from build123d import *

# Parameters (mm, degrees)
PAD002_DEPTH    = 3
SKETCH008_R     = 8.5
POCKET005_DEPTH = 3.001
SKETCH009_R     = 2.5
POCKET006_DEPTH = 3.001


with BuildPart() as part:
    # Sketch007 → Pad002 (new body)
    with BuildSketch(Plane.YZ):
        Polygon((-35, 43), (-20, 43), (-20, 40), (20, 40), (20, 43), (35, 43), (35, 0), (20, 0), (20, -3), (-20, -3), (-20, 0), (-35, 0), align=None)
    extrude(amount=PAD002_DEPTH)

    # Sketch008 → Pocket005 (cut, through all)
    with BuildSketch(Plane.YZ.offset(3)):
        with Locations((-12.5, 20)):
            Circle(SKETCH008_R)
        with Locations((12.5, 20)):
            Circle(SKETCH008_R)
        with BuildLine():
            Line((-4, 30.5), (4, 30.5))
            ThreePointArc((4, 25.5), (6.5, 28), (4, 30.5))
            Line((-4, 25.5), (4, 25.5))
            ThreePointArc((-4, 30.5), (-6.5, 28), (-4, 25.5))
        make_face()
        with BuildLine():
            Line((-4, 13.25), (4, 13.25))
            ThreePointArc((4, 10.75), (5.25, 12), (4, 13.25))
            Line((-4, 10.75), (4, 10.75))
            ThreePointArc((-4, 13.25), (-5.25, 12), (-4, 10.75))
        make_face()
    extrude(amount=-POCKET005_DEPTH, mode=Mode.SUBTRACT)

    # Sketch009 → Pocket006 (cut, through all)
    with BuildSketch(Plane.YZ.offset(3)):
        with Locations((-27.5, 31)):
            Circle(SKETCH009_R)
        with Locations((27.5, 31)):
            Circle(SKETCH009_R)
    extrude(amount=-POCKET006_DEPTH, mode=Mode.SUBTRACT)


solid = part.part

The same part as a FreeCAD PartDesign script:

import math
import FreeCAD as App
import Part
import Sketcher

V = App.Vector
Q = App.Units.Quantity


def add_polygon(sketch, points):
    """Adds a closed chain of lines whose ends are joined by coincident constraints."""
    first, n = sketch.GeometryCount, len(points)
    for a, b in zip(points, points[1:] + points[:1]):
        sketch.addGeometry(Part.LineSegment(App.Vector(*a, 0), App.Vector(*b, 0)), False)
    for i in range(n):
        sketch.addConstraint(Sketcher.Constraint("Coincident", first + i, 2, first + (i + 1) % n, 1))

doc = App.newDocument("Part")
body = doc.addObject("PartDesign::Body", "Body")

# Sketch on YZ plane
sketch1 = body.newObject("Sketcher::SketchObject", "Sketch")
sketch1.AttachmentSupport = (doc.getObject("YZ_Plane"), [""])
sketch1.MapMode = "FlatFace"
add_polygon(sketch1, [(-20, 43), (-35, 43), (-35, 0), (-20, 0), (-20, -3), (20, -3), (20, 0), (35, 0), (35, 43), (20, 43), (20, 40), (-20, 40)])  # lines 0-11
sketch1.addConstraint([
    Sketcher.Constraint("Horizontal", 0),
    Sketcher.Constraint("Vertical", 1),
    Sketcher.Constraint("Horizontal", 2),
    Sketcher.Constraint("Vertical", 3),
    Sketcher.Constraint("Horizontal", 4),
    Sketcher.Constraint("Vertical", 5),
    Sketcher.Constraint("Horizontal", 6),
    Sketcher.Constraint("Vertical", 7),
    Sketcher.Constraint("Horizontal", 8),
    Sketcher.Constraint("Vertical", 9),
    Sketcher.Constraint("Horizontal", 10),
    Sketcher.Constraint("Vertical", 11),
    Sketcher.Constraint("Symmetric", 2, 2, 5, 2, -1, 1),
    Sketcher.Constraint("Symmetric", 1, 2, 6, 2, -2),
    Sketcher.Constraint("Symmetric", 8, 2, 11, 2, -2),
    Sketcher.Constraint("Vertical", 5, 2, 8, 2),
    Sketcher.Constraint("Equal", 5, 9),
    Sketcher.Constraint("DistanceX", 0, 2, 0, 1, Q("15 mm")),
    Sketcher.Constraint("DistanceX", 4, 1, 4, 2, Q("40 mm")),
    Sketcher.Constraint("DistanceY", 1, 2, 1, 1, Q("43 mm")),
    Sketcher.Constraint("DistanceY", 3, 2, 3, 1, Q("3 mm")),
])
pad1 = body.newObject("PartDesign::Pad", "Pad")
pad1.Profile = sketch1
pad1.Length = 3

# Sketch on YZ plane
sketch2 = body.newObject("Sketcher::SketchObject", "Sketch001")
sketch2.AttachmentSupport = (doc.getObject("YZ_Plane"), [""])
sketch2.MapMode = "FlatFace"
sketch2.AttachmentOffset = App.Placement(V(0, 0, 3), App.Rotation())
sketch2.addGeometry([
    Part.Circle(V(-12.5, 20, 0), V(0, 0, 1), 8.5),  # 0
    Part.Circle(V(12.5, 20, 0), V(0, 0, 1), 8.5),  # 1
    Part.LineSegment(V(4, 30.5, 0), V(-4, 30.5, 0)),  # 2
    Part.ArcOfCircle(Part.Circle(V(-4, 28, 0), V(0, 0, 1), 2.5), math.radians(90), math.radians(270)),  # 3
    Part.LineSegment(V(-4, 25.5, 0), V(4, 25.5, 0)),  # 4
    Part.ArcOfCircle(Part.Circle(V(4, 28, 0), V(0, 0, 1), 2.5), math.radians(-90), math.radians(90)),  # 5
    Part.LineSegment(V(4, 13.25, 0), V(-4, 13.25, 0)),  # 6
    Part.ArcOfCircle(Part.Circle(V(-4, 12, 0), V(0, 0, 1), 1.25), math.radians(90), math.radians(270)),  # 7
    Part.LineSegment(V(-4, 10.75, 0), V(4, 10.75, 0)),  # 8
    Part.ArcOfCircle(Part.Circle(V(4, 12, 0), V(0, 0, 1), 1.25), math.radians(-90), math.radians(90)),  # 9
], False)
sketch2.addConstraint([
    Sketcher.Constraint("Tangent", 2, 2, 3, 1),
    Sketcher.Constraint("Tangent", 3, 2, 4, 1),
    Sketcher.Constraint("Tangent", 4, 2, 5, 1),
    Sketcher.Constraint("Tangent", 5, 2, 2, 1),
    Sketcher.Constraint("Tangent", 6, 2, 7, 1),
    Sketcher.Constraint("Tangent", 7, 2, 8, 1),
    Sketcher.Constraint("Tangent", 8, 2, 9, 1),
    Sketcher.Constraint("Tangent", 9, 2, 6, 1),
    Sketcher.Constraint("Horizontal", 2),
    Sketcher.Constraint("Horizontal", 4),
    Sketcher.Constraint("Horizontal", 6),
    Sketcher.Constraint("Horizontal", 8),
    Sketcher.Constraint("Equal", 0, 1),
    Sketcher.Constraint("Symmetric", 0, 3, 1, 3, -2),
    Sketcher.Constraint("Vertical", 3, 3, 7, 3),
    Sketcher.Constraint("Vertical", 5, 3, 9, 3),
    Sketcher.Constraint("Diameter", 0, Q("17 mm")),
    Sketcher.Constraint("Radius", 3, Q("2.5 mm")),
    Sketcher.Constraint("DistanceX", 2, 2, 2, 1, Q("8 mm")),
    Sketcher.Constraint("Radius", 7, Q("1.25 mm")),
    Sketcher.Constraint("DistanceY", -1, 1, 0, 3, Q("20 mm")),
    Sketcher.Constraint("DistanceX", 3, 3, -1, 1, Q("4 mm")),
    Sketcher.Constraint("DistanceY", -1, 1, 3, 3, Q("28 mm")),
    Sketcher.Constraint("DistanceY", -1, 1, 7, 3, Q("12 mm")),
    Sketcher.Constraint("DistanceX", 0, 3, 1, 3, Q("25 mm")),
])
pocket1 = body.newObject("PartDesign::Pocket", "Pocket")
pocket1.Profile = sketch2
pocket1.Type = "ThroughAll"

# Sketch on YZ plane
sketch3 = body.newObject("Sketcher::SketchObject", "Sketch002")
sketch3.AttachmentSupport = (doc.getObject("YZ_Plane"), [""])
sketch3.MapMode = "FlatFace"
sketch3.AttachmentOffset = App.Placement(V(0, 0, 3), App.Rotation())
sketch3.addGeometry([
    Part.Circle(V(-27.5, 31, 0), V(0, 0, 1), 2.5),
    Part.Circle(V(27.5, 31, 0), V(0, 0, 1), 2.5),
], False)
sketch3.addConstraint([
    Sketcher.Constraint("Equal", 0, 1),
    Sketcher.Constraint("Symmetric", 0, 3, 1, 3, -2),
    Sketcher.Constraint("Diameter", 0, Q("5 mm")),
    Sketcher.Constraint("DistanceY", -1, 1, 0, 3, Q("31 mm")),
    Sketcher.Constraint("DistanceX", 0, 3, 1, 3, Q("55 mm")),
])
pocket2 = body.newObject("PartDesign::Pocket", "Pocket001")
pocket2.Profile = sketch3
pocket2.Type = "ThroughAll"

doc.recompute()
